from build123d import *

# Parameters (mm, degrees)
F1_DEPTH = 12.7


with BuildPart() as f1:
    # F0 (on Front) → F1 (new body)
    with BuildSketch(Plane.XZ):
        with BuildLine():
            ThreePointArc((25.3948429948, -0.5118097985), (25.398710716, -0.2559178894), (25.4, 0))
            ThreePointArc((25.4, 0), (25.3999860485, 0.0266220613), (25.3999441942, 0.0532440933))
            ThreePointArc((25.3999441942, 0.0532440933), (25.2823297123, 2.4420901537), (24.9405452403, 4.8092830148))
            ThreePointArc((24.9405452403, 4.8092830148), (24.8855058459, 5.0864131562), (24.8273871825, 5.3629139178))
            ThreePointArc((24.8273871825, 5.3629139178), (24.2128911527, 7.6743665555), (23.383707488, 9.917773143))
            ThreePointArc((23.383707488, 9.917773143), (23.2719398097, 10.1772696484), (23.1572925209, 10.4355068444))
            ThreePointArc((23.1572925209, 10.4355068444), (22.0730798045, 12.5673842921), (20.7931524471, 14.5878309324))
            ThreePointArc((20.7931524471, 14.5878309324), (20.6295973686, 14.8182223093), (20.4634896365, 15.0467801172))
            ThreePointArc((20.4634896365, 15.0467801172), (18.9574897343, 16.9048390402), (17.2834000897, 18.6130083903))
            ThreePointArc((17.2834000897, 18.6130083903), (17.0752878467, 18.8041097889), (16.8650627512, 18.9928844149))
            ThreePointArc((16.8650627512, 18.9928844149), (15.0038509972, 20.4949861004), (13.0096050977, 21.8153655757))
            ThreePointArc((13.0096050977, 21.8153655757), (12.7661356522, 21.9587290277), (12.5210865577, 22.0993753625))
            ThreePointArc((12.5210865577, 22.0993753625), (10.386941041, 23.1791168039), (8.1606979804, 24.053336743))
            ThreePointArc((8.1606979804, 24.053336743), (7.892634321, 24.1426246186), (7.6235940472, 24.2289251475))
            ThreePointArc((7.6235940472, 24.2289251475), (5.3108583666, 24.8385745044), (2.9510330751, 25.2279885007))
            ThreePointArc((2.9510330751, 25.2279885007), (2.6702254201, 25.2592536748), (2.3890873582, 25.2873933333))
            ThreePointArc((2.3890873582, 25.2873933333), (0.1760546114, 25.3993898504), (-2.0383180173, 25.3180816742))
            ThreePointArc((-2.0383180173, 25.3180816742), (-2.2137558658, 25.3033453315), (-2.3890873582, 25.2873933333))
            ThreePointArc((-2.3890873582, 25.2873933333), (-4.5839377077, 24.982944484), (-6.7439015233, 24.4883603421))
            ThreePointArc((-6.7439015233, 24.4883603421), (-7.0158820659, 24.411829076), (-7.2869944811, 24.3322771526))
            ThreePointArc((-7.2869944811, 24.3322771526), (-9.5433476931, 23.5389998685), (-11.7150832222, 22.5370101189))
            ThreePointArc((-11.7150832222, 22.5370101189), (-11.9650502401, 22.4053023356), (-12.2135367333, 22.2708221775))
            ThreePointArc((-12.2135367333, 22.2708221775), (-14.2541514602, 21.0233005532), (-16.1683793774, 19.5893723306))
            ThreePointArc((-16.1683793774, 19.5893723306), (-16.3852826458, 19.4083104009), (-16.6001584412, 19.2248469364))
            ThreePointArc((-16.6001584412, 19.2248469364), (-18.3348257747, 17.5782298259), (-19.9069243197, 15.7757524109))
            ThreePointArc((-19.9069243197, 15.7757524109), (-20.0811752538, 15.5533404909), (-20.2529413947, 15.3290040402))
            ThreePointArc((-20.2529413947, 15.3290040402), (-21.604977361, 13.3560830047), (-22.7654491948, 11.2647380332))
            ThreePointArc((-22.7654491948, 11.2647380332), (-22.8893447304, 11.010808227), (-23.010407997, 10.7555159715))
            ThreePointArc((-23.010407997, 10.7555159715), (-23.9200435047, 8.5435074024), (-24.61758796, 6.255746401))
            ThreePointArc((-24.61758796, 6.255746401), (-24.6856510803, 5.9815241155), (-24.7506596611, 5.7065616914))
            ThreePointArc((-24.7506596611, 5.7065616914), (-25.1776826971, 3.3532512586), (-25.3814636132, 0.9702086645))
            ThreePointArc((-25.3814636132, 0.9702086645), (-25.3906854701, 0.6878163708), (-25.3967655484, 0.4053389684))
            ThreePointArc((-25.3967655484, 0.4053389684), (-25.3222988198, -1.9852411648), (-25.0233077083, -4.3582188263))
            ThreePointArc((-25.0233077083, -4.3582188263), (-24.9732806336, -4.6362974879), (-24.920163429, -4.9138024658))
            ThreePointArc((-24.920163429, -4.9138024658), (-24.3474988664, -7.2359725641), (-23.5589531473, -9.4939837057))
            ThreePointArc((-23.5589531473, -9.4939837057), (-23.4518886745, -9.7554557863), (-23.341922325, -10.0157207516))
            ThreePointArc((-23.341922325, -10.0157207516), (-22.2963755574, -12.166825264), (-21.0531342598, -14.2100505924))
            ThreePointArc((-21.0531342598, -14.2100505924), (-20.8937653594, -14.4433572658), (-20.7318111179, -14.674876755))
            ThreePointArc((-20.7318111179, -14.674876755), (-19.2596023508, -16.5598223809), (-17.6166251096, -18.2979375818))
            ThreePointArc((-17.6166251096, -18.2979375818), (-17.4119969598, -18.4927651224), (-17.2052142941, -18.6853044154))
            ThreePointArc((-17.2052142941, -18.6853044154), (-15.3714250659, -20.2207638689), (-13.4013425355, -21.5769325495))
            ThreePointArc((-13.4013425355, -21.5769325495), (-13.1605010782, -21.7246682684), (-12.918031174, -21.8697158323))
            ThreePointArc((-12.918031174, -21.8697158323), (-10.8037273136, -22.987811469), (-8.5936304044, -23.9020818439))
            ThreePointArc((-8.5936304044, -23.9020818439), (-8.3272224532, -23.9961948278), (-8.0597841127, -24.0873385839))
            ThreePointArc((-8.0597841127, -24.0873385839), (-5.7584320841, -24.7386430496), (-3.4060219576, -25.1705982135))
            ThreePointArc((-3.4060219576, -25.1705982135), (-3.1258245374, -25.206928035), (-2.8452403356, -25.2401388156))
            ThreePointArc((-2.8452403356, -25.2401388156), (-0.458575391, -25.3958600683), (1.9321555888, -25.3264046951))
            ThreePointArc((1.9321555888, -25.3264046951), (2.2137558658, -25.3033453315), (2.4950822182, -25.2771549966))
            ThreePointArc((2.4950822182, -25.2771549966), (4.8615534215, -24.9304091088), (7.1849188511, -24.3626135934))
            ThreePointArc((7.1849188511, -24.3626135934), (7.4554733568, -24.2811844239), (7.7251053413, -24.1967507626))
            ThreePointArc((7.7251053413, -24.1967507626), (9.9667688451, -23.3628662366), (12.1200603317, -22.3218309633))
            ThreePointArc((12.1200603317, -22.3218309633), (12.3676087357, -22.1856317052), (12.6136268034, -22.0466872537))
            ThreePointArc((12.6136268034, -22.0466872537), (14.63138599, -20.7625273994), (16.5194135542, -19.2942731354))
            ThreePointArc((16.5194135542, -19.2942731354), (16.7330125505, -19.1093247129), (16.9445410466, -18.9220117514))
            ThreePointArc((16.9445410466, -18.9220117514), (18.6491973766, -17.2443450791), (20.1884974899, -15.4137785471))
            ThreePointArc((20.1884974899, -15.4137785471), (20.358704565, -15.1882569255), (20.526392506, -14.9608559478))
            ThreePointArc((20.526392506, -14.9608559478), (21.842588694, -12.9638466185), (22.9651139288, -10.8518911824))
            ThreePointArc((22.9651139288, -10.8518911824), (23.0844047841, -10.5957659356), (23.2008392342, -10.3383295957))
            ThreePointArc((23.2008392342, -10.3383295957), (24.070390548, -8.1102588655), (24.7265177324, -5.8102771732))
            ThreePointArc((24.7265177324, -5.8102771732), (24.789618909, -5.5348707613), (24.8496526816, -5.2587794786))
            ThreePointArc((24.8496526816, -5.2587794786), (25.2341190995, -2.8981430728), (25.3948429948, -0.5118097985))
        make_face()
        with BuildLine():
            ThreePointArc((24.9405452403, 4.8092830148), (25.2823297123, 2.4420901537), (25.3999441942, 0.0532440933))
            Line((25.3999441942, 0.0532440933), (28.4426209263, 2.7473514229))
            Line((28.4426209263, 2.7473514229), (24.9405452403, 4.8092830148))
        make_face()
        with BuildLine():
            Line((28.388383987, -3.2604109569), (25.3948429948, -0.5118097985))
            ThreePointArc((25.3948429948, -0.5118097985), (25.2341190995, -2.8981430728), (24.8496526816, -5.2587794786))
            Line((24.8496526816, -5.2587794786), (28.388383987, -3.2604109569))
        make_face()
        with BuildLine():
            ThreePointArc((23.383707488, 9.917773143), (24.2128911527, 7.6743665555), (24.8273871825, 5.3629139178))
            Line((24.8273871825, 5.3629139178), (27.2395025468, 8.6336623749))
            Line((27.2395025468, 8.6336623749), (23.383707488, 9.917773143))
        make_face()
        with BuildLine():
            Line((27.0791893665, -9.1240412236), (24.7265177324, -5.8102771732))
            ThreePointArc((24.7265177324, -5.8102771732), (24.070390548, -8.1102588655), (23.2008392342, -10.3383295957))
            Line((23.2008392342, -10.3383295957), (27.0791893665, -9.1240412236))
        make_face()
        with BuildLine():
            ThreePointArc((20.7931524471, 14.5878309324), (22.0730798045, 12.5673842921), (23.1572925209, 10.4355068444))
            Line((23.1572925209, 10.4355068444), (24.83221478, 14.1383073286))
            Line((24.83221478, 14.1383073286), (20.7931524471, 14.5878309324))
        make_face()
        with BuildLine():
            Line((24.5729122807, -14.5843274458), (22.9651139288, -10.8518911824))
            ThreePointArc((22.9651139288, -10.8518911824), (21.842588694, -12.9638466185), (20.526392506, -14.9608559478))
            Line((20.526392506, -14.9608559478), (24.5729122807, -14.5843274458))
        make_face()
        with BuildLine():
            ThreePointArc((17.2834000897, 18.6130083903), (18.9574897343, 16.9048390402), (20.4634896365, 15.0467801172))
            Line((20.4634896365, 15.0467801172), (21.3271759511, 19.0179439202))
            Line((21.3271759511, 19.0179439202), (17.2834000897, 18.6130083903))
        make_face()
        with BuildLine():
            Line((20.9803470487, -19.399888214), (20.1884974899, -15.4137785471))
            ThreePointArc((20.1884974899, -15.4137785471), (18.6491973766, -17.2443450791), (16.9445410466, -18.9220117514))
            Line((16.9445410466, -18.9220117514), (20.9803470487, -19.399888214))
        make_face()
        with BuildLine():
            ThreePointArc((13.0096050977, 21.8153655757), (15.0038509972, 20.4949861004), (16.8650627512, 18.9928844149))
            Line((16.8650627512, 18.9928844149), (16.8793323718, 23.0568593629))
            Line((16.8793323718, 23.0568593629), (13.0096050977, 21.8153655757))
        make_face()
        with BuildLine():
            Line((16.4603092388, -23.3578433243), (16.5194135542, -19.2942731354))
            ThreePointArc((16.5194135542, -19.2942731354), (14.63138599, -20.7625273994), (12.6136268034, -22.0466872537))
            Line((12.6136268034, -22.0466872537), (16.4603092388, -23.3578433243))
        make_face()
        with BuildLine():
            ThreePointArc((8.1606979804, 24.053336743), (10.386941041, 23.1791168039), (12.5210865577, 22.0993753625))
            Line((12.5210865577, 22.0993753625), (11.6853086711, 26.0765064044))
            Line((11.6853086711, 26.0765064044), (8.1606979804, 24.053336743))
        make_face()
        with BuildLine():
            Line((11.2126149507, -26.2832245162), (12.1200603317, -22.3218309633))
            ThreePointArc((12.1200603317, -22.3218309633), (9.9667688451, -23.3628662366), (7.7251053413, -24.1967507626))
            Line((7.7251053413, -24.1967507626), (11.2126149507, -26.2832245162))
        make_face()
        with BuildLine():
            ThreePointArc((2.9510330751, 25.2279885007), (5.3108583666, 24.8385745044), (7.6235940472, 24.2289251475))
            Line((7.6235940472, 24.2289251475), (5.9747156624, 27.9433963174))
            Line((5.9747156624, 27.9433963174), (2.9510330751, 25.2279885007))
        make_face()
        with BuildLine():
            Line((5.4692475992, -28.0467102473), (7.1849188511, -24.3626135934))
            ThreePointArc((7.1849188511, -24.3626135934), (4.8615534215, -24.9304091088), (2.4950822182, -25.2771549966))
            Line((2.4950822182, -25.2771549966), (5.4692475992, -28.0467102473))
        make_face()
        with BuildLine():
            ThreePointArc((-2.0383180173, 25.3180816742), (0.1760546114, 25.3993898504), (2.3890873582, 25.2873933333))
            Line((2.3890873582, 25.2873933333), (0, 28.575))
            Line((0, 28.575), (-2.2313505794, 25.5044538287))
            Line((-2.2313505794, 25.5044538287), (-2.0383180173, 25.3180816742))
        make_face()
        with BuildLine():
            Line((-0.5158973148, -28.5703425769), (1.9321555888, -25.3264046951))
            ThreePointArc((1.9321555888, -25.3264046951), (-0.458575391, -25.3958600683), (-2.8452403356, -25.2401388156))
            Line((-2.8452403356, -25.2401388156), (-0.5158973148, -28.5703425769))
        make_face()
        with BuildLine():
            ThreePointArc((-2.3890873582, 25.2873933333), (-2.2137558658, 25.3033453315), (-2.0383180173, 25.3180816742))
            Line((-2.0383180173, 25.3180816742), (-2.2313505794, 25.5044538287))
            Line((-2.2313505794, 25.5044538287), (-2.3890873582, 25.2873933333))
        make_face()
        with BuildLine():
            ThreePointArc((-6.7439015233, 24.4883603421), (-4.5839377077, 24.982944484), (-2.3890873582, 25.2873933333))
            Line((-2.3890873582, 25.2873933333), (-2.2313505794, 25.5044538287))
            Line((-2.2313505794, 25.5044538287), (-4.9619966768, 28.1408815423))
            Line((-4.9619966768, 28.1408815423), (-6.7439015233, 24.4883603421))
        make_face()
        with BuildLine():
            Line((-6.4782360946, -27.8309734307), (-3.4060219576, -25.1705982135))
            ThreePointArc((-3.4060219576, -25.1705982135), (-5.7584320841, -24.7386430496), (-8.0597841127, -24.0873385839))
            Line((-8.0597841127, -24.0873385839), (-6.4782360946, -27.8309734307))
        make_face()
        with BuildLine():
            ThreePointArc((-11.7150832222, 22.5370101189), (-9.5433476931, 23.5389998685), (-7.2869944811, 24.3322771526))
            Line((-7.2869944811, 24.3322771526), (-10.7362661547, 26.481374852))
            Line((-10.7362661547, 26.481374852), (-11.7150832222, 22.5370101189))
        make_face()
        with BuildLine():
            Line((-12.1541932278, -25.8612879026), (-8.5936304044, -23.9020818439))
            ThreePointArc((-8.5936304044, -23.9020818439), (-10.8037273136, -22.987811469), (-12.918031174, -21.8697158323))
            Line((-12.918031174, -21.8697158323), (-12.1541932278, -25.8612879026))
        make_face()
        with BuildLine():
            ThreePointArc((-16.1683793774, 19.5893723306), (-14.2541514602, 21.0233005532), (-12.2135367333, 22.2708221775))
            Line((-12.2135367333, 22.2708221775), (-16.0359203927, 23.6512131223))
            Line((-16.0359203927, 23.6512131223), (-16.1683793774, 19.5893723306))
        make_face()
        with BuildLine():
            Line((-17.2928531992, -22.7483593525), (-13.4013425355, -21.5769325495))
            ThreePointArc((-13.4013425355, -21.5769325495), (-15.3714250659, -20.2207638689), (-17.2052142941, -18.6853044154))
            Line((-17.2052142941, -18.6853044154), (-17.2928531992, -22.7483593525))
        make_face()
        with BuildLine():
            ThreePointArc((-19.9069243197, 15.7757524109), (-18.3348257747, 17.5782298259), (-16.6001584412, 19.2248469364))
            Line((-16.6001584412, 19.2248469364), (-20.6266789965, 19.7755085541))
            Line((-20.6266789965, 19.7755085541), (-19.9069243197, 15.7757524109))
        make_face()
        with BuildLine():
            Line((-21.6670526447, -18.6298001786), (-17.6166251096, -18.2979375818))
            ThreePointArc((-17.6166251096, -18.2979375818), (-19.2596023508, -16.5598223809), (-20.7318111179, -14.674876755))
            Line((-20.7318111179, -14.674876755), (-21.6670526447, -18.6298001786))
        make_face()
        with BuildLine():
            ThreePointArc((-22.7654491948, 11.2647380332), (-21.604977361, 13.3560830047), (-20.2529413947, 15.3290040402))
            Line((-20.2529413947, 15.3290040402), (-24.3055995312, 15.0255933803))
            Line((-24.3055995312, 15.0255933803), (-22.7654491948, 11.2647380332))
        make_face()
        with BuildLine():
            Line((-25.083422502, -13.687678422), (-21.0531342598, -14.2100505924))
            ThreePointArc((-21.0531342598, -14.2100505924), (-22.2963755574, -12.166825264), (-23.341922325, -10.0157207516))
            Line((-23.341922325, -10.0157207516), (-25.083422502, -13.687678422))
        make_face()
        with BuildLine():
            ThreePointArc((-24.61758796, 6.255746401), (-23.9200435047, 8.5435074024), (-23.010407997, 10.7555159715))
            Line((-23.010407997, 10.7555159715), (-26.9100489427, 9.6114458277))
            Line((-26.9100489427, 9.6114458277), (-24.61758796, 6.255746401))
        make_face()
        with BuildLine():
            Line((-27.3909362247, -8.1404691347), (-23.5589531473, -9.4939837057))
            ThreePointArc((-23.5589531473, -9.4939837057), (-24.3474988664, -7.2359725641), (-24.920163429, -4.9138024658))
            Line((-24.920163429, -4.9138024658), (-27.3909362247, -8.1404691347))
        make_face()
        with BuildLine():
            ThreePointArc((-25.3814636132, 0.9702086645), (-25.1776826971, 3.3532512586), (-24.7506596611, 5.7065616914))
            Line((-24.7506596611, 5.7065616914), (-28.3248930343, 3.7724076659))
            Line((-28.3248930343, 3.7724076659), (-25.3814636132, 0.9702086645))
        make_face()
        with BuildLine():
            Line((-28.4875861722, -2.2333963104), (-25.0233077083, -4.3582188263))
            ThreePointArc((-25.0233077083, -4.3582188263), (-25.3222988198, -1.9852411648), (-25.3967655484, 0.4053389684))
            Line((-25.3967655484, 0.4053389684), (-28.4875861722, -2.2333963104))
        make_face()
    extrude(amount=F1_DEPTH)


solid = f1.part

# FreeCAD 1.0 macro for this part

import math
import FreeCAD as App
import Part
import Sketcher

V = App.Vector
Q = App.Units.Quantity

doc = App.newDocument("Part")
body = doc.addObject("PartDesign::Body", "Body")

# Sketch on XZ plane
sketch1 = body.newObject("Sketcher::SketchObject", "Sketch")
sketch1.AttachmentSupport = (doc.getObject("XZ_Plane"), [""])
sketch1.MapMode = "FlatFace"
sketch1.addGeometry(Part.ArcOfCircle(Part.Circle(V(0, 0, 0), V(0, 0, 1), 25.4), math.radians(-1.15), math.radians(0)), False)
sketch1.addGeometry(Part.ArcOfCircle(Part.Circle(V(0, 0, 0), V(0, 0, 1), 25.4), math.radians(0), math.radians(0.12)), False)
sketch1.addGeometry(Part.LineSegment(V(25.4, 0.05, 0), V(28.44, 2.75, 0)), False)
sketch1.addGeometry(Part.LineSegment(V(28.44, 2.75, 0), V(24.94, 4.81, 0)), False)
sketch1.addGeometry(Part.ArcOfCircle(Part.Circle(V(0, 0, 0), V(0, 0, 1), 25.4), math.radians(10.91), math.radians(12.19)), False)
sketch1.addGeometry(Part.LineSegment(V(24.83, 5.36, 0), V(27.24, 8.63, 0)), False)
sketch1.addGeometry(Part.LineSegment(V(27.24, 8.63, 0), V(23.38, 9.92, 0)), False)
sketch1.addGeometry(Part.ArcOfCircle(Part.Circle(V(0, 0, 0), V(0, 0, 1), 25.4), math.radians(22.98), math.radians(24.26)), False)
sketch1.addGeometry(Part.LineSegment(V(23.16, 10.44, 0), V(24.83, 14.14, 0)), False)
sketch1.addGeometry(Part.LineSegment(V(24.83, 14.14, 0), V(20.79, 14.59, 0)), False)
sketch1.addGeometry(Part.ArcOfCircle(Part.Circle(V(0, 0, 0), V(0, 0, 1), 25.4), math.radians(35.05), math.radians(36.33)), False)
sketch1.addGeometry(Part.LineSegment(V(20.46, 15.05, 0), V(21.33, 19.02, 0)), False)
sketch1.addGeometry(Part.LineSegment(V(21.33, 19.02, 0), V(17.28, 18.61, 0)), False)
sketch1.addGeometry(Part.ArcOfCircle(Part.Circle(V(0, 0, 0), V(0, 0, 1), 25.4), math.radians(47.12), math.radians(48.4)), False)
sketch1.addGeometry(Part.LineSegment(V(16.87, 18.99, 0), V(16.88, 23.06, 0)), False)
sketch1.addGeometry(Part.LineSegment(V(16.88, 23.06, 0), V(13.01, 21.82, 0)), False)
sketch1.addGeometry(Part.ArcOfCircle(Part.Circle(V(0, 0, 0), V(0, 0, 1), 25.4), math.radians(59.19), math.radians(60.46)), False)
sketch1.addGeometry(Part.LineSegment(V(12.52, 22.1, 0), V(11.69, 26.08, 0)), False)
sketch1.addGeometry(Part.LineSegment(V(11.69, 26.08, 0), V(8.16, 24.05, 0)), False)
sketch1.addGeometry(Part.ArcOfCircle(Part.Circle(V(0, 0, 0), V(0, 0, 1), 25.4), math.radians(71.26), math.radians(72.53)), False)
sketch1.addGeometry(Part.LineSegment(V(7.62, 24.23, 0), V(5.97, 27.94, 0)), False)
sketch1.addGeometry(Part.LineSegment(V(5.97, 27.94, 0), V(2.95, 25.23, 0)), False)
sketch1.addGeometry(Part.ArcOfCircle(Part.Circle(V(0, 0, 0), V(0, 0, 1), 25.4), math.radians(83.33), math.radians(84.6)), False)
sketch1.addGeometry(Part.LineSegment(V(2.39, 25.29, 0), V(0, 28.57, 0)), False)
sketch1.addGeometry(Part.LineSegment(V(0, 28.57, 0), V(-2.23, 25.5, 0)), False)
sketch1.addGeometry(Part.LineSegment(V(-2.23, 25.5, 0), V(-4.96, 28.14, 0)), False)
sketch1.addGeometry(Part.LineSegment(V(-4.96, 28.14, 0), V(-6.74, 24.49, 0)), False)
sketch1.addGeometry(Part.ArcOfCircle(Part.Circle(V(0, 0, 0), V(0, 0, 1), 25.4), math.radians(105.4), math.radians(106.67)), False)
sketch1.addGeometry(Part.LineSegment(V(-7.29, 24.33, 0), V(-10.74, 26.48, 0)), False)
sketch1.addGeometry(Part.LineSegment(V(-10.74, 26.48, 0), V(-11.72, 22.54, 0)), False)
sketch1.addGeometry(Part.ArcOfCircle(Part.Circle(V(0, 0, 0), V(0, 0, 1), 25.4), math.radians(117.47), math.radians(118.74)), False)
sketch1.addGeometry(Part.LineSegment(V(-12.21, 22.27, 0), V(-16.04, 23.65, 0)), False)
sketch1.addGeometry(Part.LineSegment(V(-16.04, 23.65, 0), V(-16.17, 19.59, 0)), False)
sketch1.addGeometry(Part.ArcOfCircle(Part.Circle(V(0, 0, 0), V(0, 0, 1), 25.4), math.radians(129.54), math.radians(130.81)), False)
sketch1.addGeometry(Part.LineSegment(V(-16.6, 19.22, 0), V(-20.63, 19.78, 0)), False)
sketch1.addGeometry(Part.LineSegment(V(-20.63, 19.78, 0), V(-19.91, 15.78, 0)), False)
sketch1.addGeometry(Part.ArcOfCircle(Part.Circle(V(0, 0, 0), V(0, 0, 1), 25.4), math.radians(141.6), math.radians(142.88)), False)
sketch1.addGeometry(Part.LineSegment(V(-20.25, 15.33, 0), V(-24.31, 15.03, 0)), False)
sketch1.addGeometry(Part.LineSegment(V(-24.31, 15.03, 0), V(-22.77, 11.26, 0)), False)
sketch1.addGeometry(Part.ArcOfCircle(Part.Circle(V(0, 0, 0), V(0, 0, 1), 25.4), math.radians(153.67), math.radians(154.95)), False)
sketch1.addGeometry(Part.LineSegment(V(-23.01, 10.76, 0), V(-26.91, 9.61, 0)), False)
sketch1.addGeometry(Part.LineSegment(V(-26.91, 9.61, 0), V(-24.62, 6.26, 0)), False)
sketch1.addGeometry(Part.ArcOfCircle(Part.Circle(V(0, 0, 0), V(0, 0, 1), 25.4), math.radians(165.74), math.radians(167.02)), False)
sketch1.addGeometry(Part.LineSegment(V(-24.75, 5.71, 0), V(-28.32, 3.77, 0)), False)
sketch1.addGeometry(Part.LineSegment(V(-28.32, 3.77, 0), V(-25.38, 0.97, 0)), False)
sketch1.addGeometry(Part.ArcOfCircle(Part.Circle(V(0, 0, 0), V(0, 0, 1), 25.4), math.radians(177.81), math.radians(179.09)), False)
sketch1.addGeometry(Part.LineSegment(V(-25.4, 0.41, 0), V(-28.49, -2.23, 0)), False)
sketch1.addGeometry(Part.LineSegment(V(-28.49, -2.23, 0), V(-25.02, -4.36, 0)), False)
sketch1.addGeometry(Part.ArcOfCircle(Part.Circle(V(0, 0, 0), V(0, 0, 1), 25.4), math.radians(-170.12), math.radians(-168.85)), False)
sketch1.addGeometry(Part.LineSegment(V(-24.92, -4.91, 0), V(-27.39, -8.14, 0)), False)
sketch1.addGeometry(Part.LineSegment(V(-27.39, -8.14, 0), V(-23.56, -9.49, 0)), False)
sketch1.addGeometry(Part.ArcOfCircle(Part.Circle(V(0, 0, 0), V(0, 0, 1), 25.4), math.radians(-158.05), math.radians(-156.78)), False)
sketch1.addGeometry(Part.LineSegment(V(-23.34, -10.02, 0), V(-25.08, -13.69, 0)), False)
sketch1.addGeometry(Part.LineSegment(V(-25.08, -13.69, 0), V(-21.05, -14.21, 0)), False)
sketch1.addGeometry(Part.ArcOfCircle(Part.Circle(V(0, 0, 0), V(0, 0, 1), 25.4), math.radians(-145.98), math.radians(-144.71)), False)
sketch1.addGeometry(Part.LineSegment(V(-20.73, -14.67, 0), V(-21.67, -18.63, 0)), False)
sketch1.addGeometry(Part.LineSegment(V(-21.67, -18.63, 0), V(-17.62, -18.3, 0)), False)
sketch1.addGeometry(Part.ArcOfCircle(Part.Circle(V(0, 0, 0), V(0, 0, 1), 25.4), math.radians(-133.91), math.radians(-132.64)), False)
sketch1.addGeometry(Part.LineSegment(V(-17.21, -18.69, 0), V(-17.29, -22.75, 0)), False)
sketch1.addGeometry(Part.LineSegment(V(-17.29, -22.75, 0), V(-13.4, -21.58, 0)), False)
sketch1.addGeometry(Part.ArcOfCircle(Part.Circle(V(0, 0, 0), V(0, 0, 1), 25.4), math.radians(-121.84), math.radians(-120.57)), False)
sketch1.addGeometry(Part.LineSegment(V(-12.92, -21.87, 0), V(-12.15, -25.86, 0)), False)
sketch1.addGeometry(Part.LineSegment(V(-12.15, -25.86, 0), V(-8.59, -23.9, 0)), False)
sketch1.addGeometry(Part.ArcOfCircle(Part.Circle(V(0, 0, 0), V(0, 0, 1), 25.4), math.radians(-109.78), math.radians(-108.5)), False)
sketch1.addGeometry(Part.LineSegment(V(-8.06, -24.09, 0), V(-6.48, -27.83, 0)), False)
sketch1.addGeometry(Part.LineSegment(V(-6.48, -27.83, 0), V(-3.41, -25.17, 0)), False)
sketch1.addGeometry(Part.ArcOfCircle(Part.Circle(V(0, 0, 0), V(0, 0, 1), 25.4), math.radians(-97.71), math.radians(-96.43)), False)
sketch1.addGeometry(Part.LineSegment(V(-2.85, -25.24, 0), V(-0.52, -28.57, 0)), False)
sketch1.addGeometry(Part.LineSegment(V(-0.52, -28.57, 0), V(1.93, -25.33, 0)), False)
sketch1.addGeometry(Part.ArcOfCircle(Part.Circle(V(0, 0, 0), V(0, 0, 1), 25.4), math.radians(-85.64), math.radians(-84.36)), False)
sketch1.addGeometry(Part.LineSegment(V(2.5, -25.28, 0), V(5.47, -28.05, 0)), False)
sketch1.addGeometry(Part.LineSegment(V(5.47, -28.05, 0), V(7.18, -24.36, 0)), False)
sketch1.addGeometry(Part.ArcOfCircle(Part.Circle(V(0, 0, 0), V(0, 0, 1), 25.4), math.radians(-73.57), math.radians(-72.29)), False)
sketch1.addGeometry(Part.LineSegment(V(7.73, -24.2, 0), V(11.21, -26.28, 0)), False)
sketch1.addGeometry(Part.LineSegment(V(11.21, -26.28, 0), V(12.12, -22.32, 0)), False)
sketch1.addGeometry(Part.ArcOfCircle(Part.Circle(V(0, 0, 0), V(0, 0, 1), 25.4), math.radians(-61.5), math.radians(-60.22)), False)
sketch1.addGeometry(Part.LineSegment(V(12.61, -22.05, 0), V(16.46, -23.36, 0)), False)
sketch1.addGeometry(Part.LineSegment(V(16.46, -23.36, 0), V(16.52, -19.29, 0)), False)
sketch1.addGeometry(Part.ArcOfCircle(Part.Circle(V(0, 0, 0), V(0, 0, 1), 25.4), math.radians(-49.43), math.radians(-48.16)), False)
sketch1.addGeometry(Part.LineSegment(V(16.94, -18.92, 0), V(20.98, -19.4, 0)), False)
sketch1.addGeometry(Part.LineSegment(V(20.98, -19.4, 0), V(20.19, -15.41, 0)), False)
sketch1.addGeometry(Part.ArcOfCircle(Part.Circle(V(0, 0, 0), V(0, 0, 1), 25.4), math.radians(-37.36), math.radians(-36.09)), False)
sketch1.addGeometry(Part.LineSegment(V(20.53, -14.96, 0), V(24.57, -14.58, 0)), False)
sketch1.addGeometry(Part.LineSegment(V(24.57, -14.58, 0), V(22.97, -10.85, 0)), False)
sketch1.addGeometry(Part.ArcOfCircle(Part.Circle(V(0, 0, 0), V(0, 0, 1), 25.4), math.radians(-25.29), math.radians(-24.02)), False)
sketch1.addGeometry(Part.LineSegment(V(23.2, -10.34, 0), V(27.08, -9.12, 0)), False)
sketch1.addGeometry(Part.LineSegment(V(27.08, -9.12, 0), V(24.73, -5.81, 0)), False)
sketch1.addGeometry(Part.ArcOfCircle(Part.Circle(V(0, 0, 0), V(0, 0, 1), 25.4), math.radians(-13.22), math.radians(-11.95)), False)
sketch1.addGeometry(Part.LineSegment(V(24.85, -5.26, 0), V(28.39, -3.26, 0)), False)
sketch1.addGeometry(Part.LineSegment(V(28.39, -3.26, 0), V(25.39, -0.51, 0)), False)
sketch1.addConstraint(Sketcher.Constraint("Tangent", 0, 2, 1, 1))
sketch1.addConstraint(Sketcher.Constraint("Coincident", 1, 2, 2, 1))
sketch1.addConstraint(Sketcher.Constraint("Coincident", 2, 2, 3, 1))
sketch1.addConstraint(Sketcher.Constraint("Coincident", 3, 2, 4, 1))
sketch1.addConstraint(Sketcher.Constraint("Coincident", 4, 2, 5, 1))
sketch1.addConstraint(Sketcher.Constraint("Coincident", 5, 2, 6, 1))
sketch1.addConstraint(Sketcher.Constraint("Coincident", 6, 2, 7, 1))
sketch1.addConstraint(Sketcher.Constraint("Coincident", 7, 2, 8, 1))
sketch1.addConstraint(Sketcher.Constraint("Coincident", 8, 2, 9, 1))
sketch1.addConstraint(Sketcher.Constraint("Coincident", 9, 2, 10, 1))
sketch1.addConstraint(Sketcher.Constraint("Coincident", 10, 2, 11, 1))
sketch1.addConstraint(Sketcher.Constraint("Coincident", 11, 2, 12, 1))
sketch1.addConstraint(Sketcher.Constraint("Coincident", 12, 2, 13, 1))
sketch1.addConstraint(Sketcher.Constraint("Coincident", 13, 2, 14, 1))
sketch1.addConstraint(Sketcher.Constraint("Coincident", 14, 2, 15, 1))
sketch1.addConstraint(Sketcher.Constraint("Coincident", 15, 2, 16, 1))
sketch1.addConstraint(Sketcher.Constraint("Coincident", 16, 2, 17, 1))
sketch1.addConstraint(Sketcher.Constraint("Coincident", 17, 2, 18, 1))
sketch1.addConstraint(Sketcher.Constraint("Coincident", 18, 2, 19, 1))
sketch1.addConstraint(Sketcher.Constraint("Coincident", 19, 2, 20, 1))
sketch1.addConstraint(Sketcher.Constraint("Coincident", 20, 2, 21, 1))
sketch1.addConstraint(Sketcher.Constraint("Coincident", 21, 2, 22, 1))
sketch1.addConstraint(Sketcher.Constraint("Coincident", 22, 2, 23, 1))
sketch1.addConstraint(Sketcher.Constraint("Coincident", 23, 2, 24, 1))
sketch1.addConstraint(Sketcher.Constraint("Coincident", 24, 2, 25, 1))
sketch1.addConstraint(Sketcher.Constraint("Coincident", 25, 2, 26, 1))
sketch1.addConstraint(Sketcher.Constraint("Coincident", 26, 2, 27, 1))
sketch1.addConstraint(Sketcher.Constraint("Coincident", 27, 2, 28, 1))
sketch1.addConstraint(Sketcher.Constraint("Coincident", 28, 2, 29, 1))
sketch1.addConstraint(Sketcher.Constraint("Coincident", 29, 2, 30, 1))
sketch1.addConstraint(Sketcher.Constraint("Coincident", 30, 2, 31, 1))
sketch1.addConstraint(Sketcher.Constraint("Coincident", 31, 2, 32, 1))
sketch1.addConstraint(Sketcher.Constraint("Coincident", 32, 2, 33, 1))
sketch1.addConstraint(Sketcher.Constraint("Coincident", 33, 2, 34, 1))
sketch1.addConstraint(Sketcher.Constraint("Coincident", 34, 2, 35, 1))
sketch1.addConstraint(Sketcher.Constraint("Coincident", 35, 2, 36, 1))
sketch1.addConstraint(Sketcher.Constraint("Coincident", 36, 2, 37, 1))
sketch1.addConstraint(Sketcher.Constraint("Coincident", 37, 2, 38, 1))
sketch1.addConstraint(Sketcher.Constraint("Coincident", 38, 2, 39, 1))
sketch1.addConstraint(Sketcher.Constraint("Coincident", 39, 2, 40, 1))
sketch1.addConstraint(Sketcher.Constraint("Coincident", 40, 2, 41, 1))
sketch1.addConstraint(Sketcher.Constraint("Coincident", 41, 2, 42, 1))
sketch1.addConstraint(Sketcher.Constraint("Coincident", 42, 2, 43, 1))
sketch1.addConstraint(Sketcher.Constraint("Coincident", 43, 2, 44, 1))
sketch1.addConstraint(Sketcher.Constraint("Coincident", 44, 2, 45, 1))
sketch1.addConstraint(Sketcher.Constraint("Coincident", 45, 2, 46, 1))
sketch1.addConstraint(Sketcher.Constraint("Coincident", 46, 2, 47, 1))
sketch1.addConstraint(Sketcher.Constraint("Coincident", 47, 2, 48, 1))
sketch1.addConstraint(Sketcher.Constraint("Coincident", 48, 2, 49, 1))
sketch1.addConstraint(Sketcher.Constraint("Coincident", 49, 2, 50, 1))
sketch1.addConstraint(Sketcher.Constraint("Coincident", 50, 2, 51, 1))
sketch1.addConstraint(Sketcher.Constraint("Coincident", 51, 2, 52, 1))
sketch1.addConstraint(Sketcher.Constraint("Coincident", 52, 2, 53, 1))
sketch1.addConstraint(Sketcher.Constraint("Coincident", 53, 2, 54, 1))
sketch1.addConstraint(Sketcher.Constraint("Coincident", 54, 2, 55, 1))
sketch1.addConstraint(Sketcher.Constraint("Coincident", 55, 2, 56, 1))
sketch1.addConstraint(Sketcher.Constraint("Coincident", 56, 2, 57, 1))
sketch1.addConstraint(Sketcher.Constraint("Coincident", 57, 2, 58, 1))
sketch1.addConstraint(Sketcher.Constraint("Coincident", 58, 2, 59, 1))
sketch1.addConstraint(Sketcher.Constraint("Coincident", 59, 2, 60, 1))
sketch1.addConstraint(Sketcher.Constraint("Coincident", 60, 2, 61, 1))
sketch1.addConstraint(Sketcher.Constraint("Coincident", 61, 2, 62, 1))
sketch1.addConstraint(Sketcher.Constraint("Coincident", 62, 2, 63, 1))
sketch1.addConstraint(Sketcher.Constraint("Coincident", 63, 2, 64, 1))
sketch1.addConstraint(Sketcher.Constraint("Coincident", 64, 2, 65, 1))
sketch1.addConstraint(Sketcher.Constraint("Coincident", 65, 2, 66, 1))
sketch1.addConstraint(Sketcher.Constraint("Coincident", 66, 2, 67, 1))
sketch1.addConstraint(Sketcher.Constraint("Coincident", 67, 2, 68, 1))
sketch1.addConstraint(Sketcher.Constraint("Coincident", 68, 2, 69, 1))
sketch1.addConstraint(Sketcher.Constraint("Coincident", 69, 2, 70, 1))
sketch1.addConstraint(Sketcher.Constraint("Coincident", 70, 2, 71, 1))
sketch1.addConstraint(Sketcher.Constraint("Coincident", 71, 2, 72, 1))
sketch1.addConstraint(Sketcher.Constraint("Coincident", 72, 2, 73, 1))
sketch1.addConstraint(Sketcher.Constraint("Coincident", 73, 2, 74, 1))
sketch1.addConstraint(Sketcher.Constraint("Coincident", 74, 2, 75, 1))
sketch1.addConstraint(Sketcher.Constraint("Coincident", 75, 2, 76, 1))
sketch1.addConstraint(Sketcher.Constraint("Coincident", 76, 2, 77, 1))
sketch1.addConstraint(Sketcher.Constraint("Coincident", 77, 2, 78, 1))
sketch1.addConstraint(Sketcher.Constraint("Coincident", 78, 2, 79, 1))
sketch1.addConstraint(Sketcher.Constraint("Coincident", 79, 2, 80, 1))
sketch1.addConstraint(Sketcher.Constraint("Coincident", 80, 2, 81, 1))
sketch1.addConstraint(Sketcher.Constraint("Coincident", 81, 2, 82, 1))
sketch1.addConstraint(Sketcher.Constraint("Coincident", 82, 2, 83, 1))
sketch1.addConstraint(Sketcher.Constraint("Coincident", 83, 2, 84, 1))
sketch1.addConstraint(Sketcher.Constraint("Coincident", 84, 2, 85, 1))
sketch1.addConstraint(Sketcher.Constraint("Coincident", 85, 2, 86, 1))
sketch1.addConstraint(Sketcher.Constraint("Coincident", 86, 2, 87, 1))
sketch1.addConstraint(Sketcher.Constraint("Coincident", 87, 2, 88, 1))
sketch1.addConstraint(Sketcher.Constraint("Coincident", 88, 2, 89, 1))
sketch1.addConstraint(Sketcher.Constraint("Coincident", 89, 2, 0, 1))
sketch1.addConstraint(Sketcher.Constraint("Coincident", 0, 3, -1, 1))
sketch1.addConstraint(Sketcher.Constraint("Coincident", 4, 3, -1, 1))
sketch1.addConstraint(Sketcher.Constraint("Coincident", 7, 3, -1, 1))
sketch1.addConstraint(Sketcher.Constraint("Coincident", 10, 3, -1, 1))
sketch1.addConstraint(Sketcher.Constraint("Coincident", 13, 3, -1, 1))
sketch1.addConstraint(Sketcher.Constraint("Coincident", 16, 3, -1, 1))
sketch1.addConstraint(Sketcher.Constraint("Coincident", 19, 3, -1, 1))
sketch1.addConstraint(Sketcher.Constraint("Coincident", 22, 3, -1, 1))
sketch1.addConstraint(Sketcher.Constraint("Coincident", 27, 3, -1, 1))
sketch1.addConstraint(Sketcher.Constraint("Coincident", 30, 3, -1, 1))
sketch1.addConstraint(Sketcher.Constraint("Coincident", 33, 3, -1, 1))
sketch1.addConstraint(Sketcher.Constraint("Coincident", 36, 3, -1, 1))
sketch1.addConstraint(Sketcher.Constraint("Coincident", 39, 3, -1, 1))
sketch1.addConstraint(Sketcher.Constraint("Coincident", 42, 3, -1, 1))
sketch1.addConstraint(Sketcher.Constraint("Coincident", 45, 3, -1, 1))
sketch1.addConstraint(Sketcher.Constraint("Coincident", 48, 3, -1, 1))
sketch1.addConstraint(Sketcher.Constraint("Coincident", 51, 3, -1, 1))
sketch1.addConstraint(Sketcher.Constraint("Coincident", 54, 3, -1, 1))
sketch1.addConstraint(Sketcher.Constraint("Coincident", 57, 3, -1, 1))
sketch1.addConstraint(Sketcher.Constraint("Coincident", 60, 3, -1, 1))
sketch1.addConstraint(Sketcher.Constraint("Coincident", 63, 3, -1, 1))
sketch1.addConstraint(Sketcher.Constraint("Coincident", 66, 3, -1, 1))
sketch1.addConstraint(Sketcher.Constraint("Coincident", 69, 3, -1, 1))
sketch1.addConstraint(Sketcher.Constraint("Coincident", 72, 3, -1, 1))
sketch1.addConstraint(Sketcher.Constraint("Coincident", 75, 3, -1, 1))
sketch1.addConstraint(Sketcher.Constraint("Coincident", 78, 3, -1, 1))
sketch1.addConstraint(Sketcher.Constraint("Coincident", 81, 3, -1, 1))
sketch1.addConstraint(Sketcher.Constraint("Coincident", 84, 3, -1, 1))
sketch1.addConstraint(Sketcher.Constraint("Coincident", 87, 3, -1, 1))
sketch1.addConstraint(Sketcher.Constraint("Equal", 0, 4))
sketch1.addConstraint(Sketcher.Constraint("Equal", 4, 7))
sketch1.addConstraint(Sketcher.Constraint("Equal", 7, 10))
sketch1.addConstraint(Sketcher.Constraint("Equal", 10, 13))
sketch1.addConstraint(Sketcher.Constraint("Equal", 13, 16))
sketch1.addConstraint(Sketcher.Constraint("Equal", 16, 19))
sketch1.addConstraint(Sketcher.Constraint("Equal", 19, 22))
sketch1.addConstraint(Sketcher.Constraint("Equal", 22, 27))
sketch1.addConstraint(Sketcher.Constraint("Equal", 27, 30))
sketch1.addConstraint(Sketcher.Constraint("Equal", 30, 33))
sketch1.addConstraint(Sketcher.Constraint("Equal", 33, 36))
sketch1.addConstraint(Sketcher.Constraint("Equal", 36, 39))
sketch1.addConstraint(Sketcher.Constraint("Equal", 39, 42))
sketch1.addConstraint(Sketcher.Constraint("Equal", 42, 45))
sketch1.addConstraint(Sketcher.Constraint("Equal", 45, 48))
sketch1.addConstraint(Sketcher.Constraint("Equal", 48, 51))
sketch1.addConstraint(Sketcher.Constraint("Equal", 51, 54))
sketch1.addConstraint(Sketcher.Constraint("Equal", 54, 57))
sketch1.addConstraint(Sketcher.Constraint("Equal", 57, 60))
sketch1.addConstraint(Sketcher.Constraint("Equal", 60, 63))
sketch1.addConstraint(Sketcher.Constraint("Equal", 63, 66))
sketch1.addConstraint(Sketcher.Constraint("Equal", 66, 69))
sketch1.addConstraint(Sketcher.Constraint("Equal", 69, 72))
sketch1.addConstraint(Sketcher.Constraint("Equal", 72, 75))
sketch1.addConstraint(Sketcher.Constraint("Equal", 75, 78))
sketch1.addConstraint(Sketcher.Constraint("Equal", 78, 81))
sketch1.addConstraint(Sketcher.Constraint("Equal", 81, 84))
sketch1.addConstraint(Sketcher.Constraint("Equal", 84, 87))
sketch1.addConstraint(Sketcher.Constraint("PointOnObject", 0, 2, -1))
sketch1.addConstraint(Sketcher.Constraint("PointOnObject", 23, 2, -2))
sketch1.addConstraint(Sketcher.Constraint("Equal", 2, 3))
sketch1.addConstraint(Sketcher.Constraint("Equal", 3, 5))
sketch1.addConstraint(Sketcher.Constraint("Equal", 5, 6))
sketch1.addConstraint(Sketcher.Constraint("Equal", 6, 8))
sketch1.addConstraint(Sketcher.Constraint("Equal", 8, 9))
sketch1.addConstraint(Sketcher.Constraint("Equal", 9, 11))
sketch1.addConstraint(Sketcher.Constraint("Equal", 11, 12))
sketch1.addConstraint(Sketcher.Constraint("Equal", 12, 14))
sketch1.addConstraint(Sketcher.Constraint("Equal", 14, 15))
sketch1.addConstraint(Sketcher.Constraint("Equal", 15, 17))
sketch1.addConstraint(Sketcher.Constraint("Equal", 17, 18))
sketch1.addConstraint(Sketcher.Constraint("Equal", 18, 20))
sketch1.addConstraint(Sketcher.Constraint("Equal", 20, 21))
sketch1.addConstraint(Sketcher.Constraint("Equal", 21, 23))
sketch1.addConstraint(Sketcher.Constraint("Equal", 24, 25))
sketch1.addConstraint(Sketcher.Constraint("Equal", 23, 26))
sketch1.addConstraint(Sketcher.Constraint("Equal", 26, 28))
sketch1.addConstraint(Sketcher.Constraint("Equal", 28, 29))
sketch1.addConstraint(Sketcher.Constraint("Equal", 29, 31))
sketch1.addConstraint(Sketcher.Constraint("Equal", 31, 32))
sketch1.addConstraint(Sketcher.Constraint("Equal", 32, 34))
sketch1.addConstraint(Sketcher.Constraint("Equal", 34, 35))
sketch1.addConstraint(Sketcher.Constraint("Equal", 35, 37))
sketch1.addConstraint(Sketcher.Constraint("Equal", 37, 38))
sketch1.addConstraint(Sketcher.Constraint("Equal", 38, 40))
sketch1.addConstraint(Sketcher.Constraint("Equal", 40, 41))
sketch1.addConstraint(Sketcher.Constraint("Equal", 41, 43))
sketch1.addConstraint(Sketcher.Constraint("Equal", 43, 44))
sketch1.addConstraint(Sketcher.Constraint("Equal", 44, 46))
sketch1.addConstraint(Sketcher.Constraint("Equal", 46, 47))
sketch1.addConstraint(Sketcher.Constraint("Equal", 47, 49))
sketch1.addConstraint(Sketcher.Constraint("Equal", 49, 50))
sketch1.addConstraint(Sketcher.Constraint("Equal", 50, 52))
sketch1.addConstraint(Sketcher.Constraint("Equal", 52, 53))
sketch1.addConstraint(Sketcher.Constraint("Equal", 53, 55))
sketch1.addConstraint(Sketcher.Constraint("Equal", 55, 56))
sketch1.addConstraint(Sketcher.Constraint("Equal", 56, 58))
sketch1.addConstraint(Sketcher.Constraint("Equal", 58, 59))
sketch1.addConstraint(Sketcher.Constraint("Equal", 59, 61))
sketch1.addConstraint(Sketcher.Constraint("Equal", 61, 62))
sketch1.addConstraint(Sketcher.Constraint("Equal", 62, 64))
sketch1.addConstraint(Sketcher.Constraint("Equal", 64, 65))
sketch1.addConstraint(Sketcher.Constraint("Equal", 65, 67))
sketch1.addConstraint(Sketcher.Constraint("Equal", 67, 68))
sketch1.addConstraint(Sketcher.Constraint("Equal", 68, 70))
sketch1.addConstraint(Sketcher.Constraint("Equal", 70, 71))
sketch1.addConstraint(Sketcher.Constraint("Equal", 71, 73))
sketch1.addConstraint(Sketcher.Constraint("Equal", 73, 74))
sketch1.addConstraint(Sketcher.Constraint("Equal", 74, 76))
sketch1.addConstraint(Sketcher.Constraint("Equal", 76, 77))
sketch1.addConstraint(Sketcher.Constraint("Equal", 77, 79))
sketch1.addConstraint(Sketcher.Constraint("Equal", 79, 80))
sketch1.addConstraint(Sketcher.Constraint("Equal", 80, 82))
sketch1.addConstraint(Sketcher.Constraint("Equal", 82, 83))
sketch1.addConstraint(Sketcher.Constraint("Equal", 83, 85))
sketch1.addConstraint(Sketcher.Constraint("Equal", 85, 86))
sketch1.addConstraint(Sketcher.Constraint("Equal", 86, 88))
sketch1.addConstraint(Sketcher.Constraint("Equal", 88, 89))
sketch1.addConstraint(Sketcher.Constraint("Radius", 0, Q("1 in")))
sketch1.addConstraint(Sketcher.Constraint("Distance", 2, Q("0.16 in")))
sketch1.addConstraint(Sketcher.Constraint("Radius", 1, Q("25.400101 mm")))
sketch1.addConstraint(Sketcher.Constraint("DistanceY", -1, 1, 23, 2, Q("1.125 in")))
sketch1.addConstraint(Sketcher.Constraint("DistanceY", 76, 2, -1, 1, Q("0.9196001 in")))
sketch1.addConstraint(Sketcher.Constraint("DistanceX", -1, 1, 12, 2, Q("17.2834 mm")))
sketch1.addConstraint(Sketcher.Constraint("DistanceX", 26, 2, -1, 1, Q("6.743902 mm")))
sketch1.addConstraint(Sketcher.Constraint("DistanceX", 37, 2, -1, 1, Q("24.3056 mm")))
sketch1.addConstraint(Sketcher.Constraint("DistanceY", 55, 2, -1, 1, Q("18.6298 mm")))
sketch1.addConstraint(Sketcher.Constraint("DistanceY", 65, 2, -1, 1, Q("25.170598 mm")))
sketch1.addConstraint(Sketcher.Constraint("Distance", 24, Q("3.795679 mm")))
sketch1.addConstraint(Sketcher.Constraint("DistanceX", -1, 1, 2, 2, Q("28.442621 mm")))
sketch1.addConstraint(Sketcher.Constraint("DistanceY", -1, 1, 2, 2, Q("2.747351 mm")))
sketch1.addConstraint(Sketcher.Constraint("DistanceY", -1, 1, 9, 2, Q("14.587831 mm")))
sketch1.addConstraint(Sketcher.Constraint("DistanceX", -1, 1, 10, 2, Q("20.46349 mm")))
sketch1.addConstraint(Sketcher.Constraint("DistanceY", -1, 1, 14, 2, Q("23.056859 mm")))
sketch1.addConstraint(Sketcher.Constraint("DistanceX", -1, 1, 17, 2, Q("11.685309 mm")))
sketch1.addConstraint(Sketcher.Constraint("DistanceY", -1, 1, 21, 2, Q("25.227989 mm")))
sketch1.addConstraint(Sketcher.Constraint("DistanceX", 24, 2, -1, 1, Q("2.231351 mm")))
sketch1.addConstraint(Sketcher.Constraint("DistanceY", -1, 1, 29, 2, Q("22.53701 mm")))
sketch1.addConstraint(Sketcher.Constraint("DistanceX", 31, 2, -1, 1, Q("16.03592 mm")))
sketch1.addConstraint(Sketcher.Constraint("DistanceX", 32, 2, -1, 1, Q("16.168379 mm")))
sketch1.addConstraint(Sketcher.Constraint("DistanceX", 33, 2, -1, 1, Q("16.600158 mm")))
sketch1.addConstraint(Sketcher.Constraint("DistanceX", 34, 2, -1, 1, Q("20.626679 mm")))
sketch1.addConstraint(Sketcher.Constraint("DistanceX", 36, 2, -1, 1, Q("20.252941 mm")))
sketch1.addConstraint(Sketcher.Constraint("DistanceX", 40, 2, -1, 1, Q("26.910049 mm")))
sketch1.addConstraint(Sketcher.Constraint("DistanceX", 42, 2, -1, 1, Q("24.75066 mm")))
sketch1.addConstraint(Sketcher.Constraint("DistanceY", -1, 1, 44, 2, Q("0.970209 mm")))
sketch1.addConstraint(Sketcher.Constraint("DistanceY", -1, 1, 45, 2, Q("0.405339 mm")))
sketch1.addConstraint(Sketcher.Constraint("DistanceY", 47, 2, -1, 1, Q("4.358219 mm")))
sketch1.addConstraint(Sketcher.Constraint("DistanceY", 49, 2, -1, 1, Q("8.140469 mm")))
sketch1.addConstraint(Sketcher.Constraint("DistanceY", 51, 2, -1, 1, Q("10.015721 mm")))
sketch1.addConstraint(Sketcher.Constraint("DistanceY", 52, 2, -1, 1, Q("13.687678 mm")))
sketch1.addConstraint(Sketcher.Constraint("DistanceX", 54, 2, -1, 1, Q("20.731811 mm")))
sketch1.addConstraint(Sketcher.Constraint("DistanceY", 58, 2, -1, 1, Q("22.748359 mm")))
sketch1.addConstraint(Sketcher.Constraint("DistanceX", 60, 2, -1, 1, Q("12.918031 mm")))
sketch1.addConstraint(Sketcher.Constraint("DistanceX", 62, 2, -1, 1, Q("8.59363 mm")))
sketch1.addConstraint(Sketcher.Constraint("DistanceY", 63, 2, -1, 1, Q("24.087339 mm")))
sketch1.addConstraint(Sketcher.Constraint("DistanceX", 66, 2, -1, 1, Q("2.84524 mm")))
sketch1.addConstraint(Sketcher.Constraint("DistanceY", 70, 2, -1, 1, Q("28.04671 mm")))
sketch1.addConstraint(Sketcher.Constraint("DistanceX", -1, 1, 71, 2, Q("7.184919 mm")))
sketch1.addConstraint(Sketcher.Constraint("DistanceY", 72, 2, -1, 1, Q("24.196751 mm")))
sketch1.addConstraint(Sketcher.Constraint("DistanceX", -1, 1, 74, 2, Q("12.12006 mm")))
sketch1.addConstraint(Sketcher.Constraint("DistanceX", -1, 1, 76, 2, Q("16.460309 mm")))
sketch1.addConstraint(Sketcher.Constraint("DistanceX", -1, 1, 78, 2, Q("16.944541 mm")))
sketch1.addConstraint(Sketcher.Constraint("DistanceY", 79, 2, -1, 1, Q("19.399888 mm")))
sketch1.addConstraint(Sketcher.Constraint("DistanceY", 83, 2, -1, 1, Q("10.851891 mm")))
sketch1.addConstraint(Sketcher.Constraint("DistanceX", -1, 1, 84, 2, Q("23.200839 mm")))
sketch1.addConstraint(Sketcher.Constraint("DistanceX", -1, 1, 85, 2, Q("27.079189 mm")))
sketch1.addConstraint(Sketcher.Constraint("DistanceY", 87, 2, -1, 1, Q("5.258779 mm")))
sketch1.addConstraint(Sketcher.Constraint("DistanceY", 88, 2, -1, 1, Q("3.260411 mm")))
sketch1.addConstraint(Sketcher.Constraint("DistanceX", -1, 1, 4, 2, Q("24.827387 mm")))
sketch1.addConstraint(Sketcher.Constraint("DistanceX", -1, 1, 5, 2, Q("27.239503 mm")))
sketch1.addConstraint(Sketcher.Constraint("DistanceX", -1, 1, 7, 2, Q("23.157293 mm")))
sketch1.addConstraint(Sketcher.Constraint("DistanceX", -1, 1, 14, 2, Q("16.879332 mm")))
sketch1.addConstraint(Sketcher.Constraint("DistanceX", -1, 1, 16, 2, Q("12.521087 mm")))
sketch1.addConstraint(Sketcher.Constraint("DistanceX", -1, 1, 19, 2, Q("7.623594 mm")))
sketch1.addConstraint(Sketcher.Constraint("DistanceX", 27, 2, -1, 1, Q("7.286994 mm")))
sketch1.addConstraint(Sketcher.Constraint("DistanceX", 39, 2, -1, 1, Q("23.010408 mm")))
sketch1.addConstraint(Sketcher.Constraint("DistanceX", 48, 2, -1, 1, Q("24.920163 mm")))
sketch1.addConstraint(Sketcher.Constraint("DistanceX", 58, 2, -1, 1, Q("17.292853 mm")))
sketch1.addConstraint(Sketcher.Constraint("DistanceX", 67, 2, -1, 1, Q("0.515897 mm")))
sketch1.addConstraint(Sketcher.Constraint("DistanceX", -1, 1, 81, 2, Q("20.526393 mm")))
pad1 = body.newObject("PartDesign::Pad", "Pad")
pad1.Profile = sketch1
pad1.Length = Q("0.5 in")

doc.recompute()
